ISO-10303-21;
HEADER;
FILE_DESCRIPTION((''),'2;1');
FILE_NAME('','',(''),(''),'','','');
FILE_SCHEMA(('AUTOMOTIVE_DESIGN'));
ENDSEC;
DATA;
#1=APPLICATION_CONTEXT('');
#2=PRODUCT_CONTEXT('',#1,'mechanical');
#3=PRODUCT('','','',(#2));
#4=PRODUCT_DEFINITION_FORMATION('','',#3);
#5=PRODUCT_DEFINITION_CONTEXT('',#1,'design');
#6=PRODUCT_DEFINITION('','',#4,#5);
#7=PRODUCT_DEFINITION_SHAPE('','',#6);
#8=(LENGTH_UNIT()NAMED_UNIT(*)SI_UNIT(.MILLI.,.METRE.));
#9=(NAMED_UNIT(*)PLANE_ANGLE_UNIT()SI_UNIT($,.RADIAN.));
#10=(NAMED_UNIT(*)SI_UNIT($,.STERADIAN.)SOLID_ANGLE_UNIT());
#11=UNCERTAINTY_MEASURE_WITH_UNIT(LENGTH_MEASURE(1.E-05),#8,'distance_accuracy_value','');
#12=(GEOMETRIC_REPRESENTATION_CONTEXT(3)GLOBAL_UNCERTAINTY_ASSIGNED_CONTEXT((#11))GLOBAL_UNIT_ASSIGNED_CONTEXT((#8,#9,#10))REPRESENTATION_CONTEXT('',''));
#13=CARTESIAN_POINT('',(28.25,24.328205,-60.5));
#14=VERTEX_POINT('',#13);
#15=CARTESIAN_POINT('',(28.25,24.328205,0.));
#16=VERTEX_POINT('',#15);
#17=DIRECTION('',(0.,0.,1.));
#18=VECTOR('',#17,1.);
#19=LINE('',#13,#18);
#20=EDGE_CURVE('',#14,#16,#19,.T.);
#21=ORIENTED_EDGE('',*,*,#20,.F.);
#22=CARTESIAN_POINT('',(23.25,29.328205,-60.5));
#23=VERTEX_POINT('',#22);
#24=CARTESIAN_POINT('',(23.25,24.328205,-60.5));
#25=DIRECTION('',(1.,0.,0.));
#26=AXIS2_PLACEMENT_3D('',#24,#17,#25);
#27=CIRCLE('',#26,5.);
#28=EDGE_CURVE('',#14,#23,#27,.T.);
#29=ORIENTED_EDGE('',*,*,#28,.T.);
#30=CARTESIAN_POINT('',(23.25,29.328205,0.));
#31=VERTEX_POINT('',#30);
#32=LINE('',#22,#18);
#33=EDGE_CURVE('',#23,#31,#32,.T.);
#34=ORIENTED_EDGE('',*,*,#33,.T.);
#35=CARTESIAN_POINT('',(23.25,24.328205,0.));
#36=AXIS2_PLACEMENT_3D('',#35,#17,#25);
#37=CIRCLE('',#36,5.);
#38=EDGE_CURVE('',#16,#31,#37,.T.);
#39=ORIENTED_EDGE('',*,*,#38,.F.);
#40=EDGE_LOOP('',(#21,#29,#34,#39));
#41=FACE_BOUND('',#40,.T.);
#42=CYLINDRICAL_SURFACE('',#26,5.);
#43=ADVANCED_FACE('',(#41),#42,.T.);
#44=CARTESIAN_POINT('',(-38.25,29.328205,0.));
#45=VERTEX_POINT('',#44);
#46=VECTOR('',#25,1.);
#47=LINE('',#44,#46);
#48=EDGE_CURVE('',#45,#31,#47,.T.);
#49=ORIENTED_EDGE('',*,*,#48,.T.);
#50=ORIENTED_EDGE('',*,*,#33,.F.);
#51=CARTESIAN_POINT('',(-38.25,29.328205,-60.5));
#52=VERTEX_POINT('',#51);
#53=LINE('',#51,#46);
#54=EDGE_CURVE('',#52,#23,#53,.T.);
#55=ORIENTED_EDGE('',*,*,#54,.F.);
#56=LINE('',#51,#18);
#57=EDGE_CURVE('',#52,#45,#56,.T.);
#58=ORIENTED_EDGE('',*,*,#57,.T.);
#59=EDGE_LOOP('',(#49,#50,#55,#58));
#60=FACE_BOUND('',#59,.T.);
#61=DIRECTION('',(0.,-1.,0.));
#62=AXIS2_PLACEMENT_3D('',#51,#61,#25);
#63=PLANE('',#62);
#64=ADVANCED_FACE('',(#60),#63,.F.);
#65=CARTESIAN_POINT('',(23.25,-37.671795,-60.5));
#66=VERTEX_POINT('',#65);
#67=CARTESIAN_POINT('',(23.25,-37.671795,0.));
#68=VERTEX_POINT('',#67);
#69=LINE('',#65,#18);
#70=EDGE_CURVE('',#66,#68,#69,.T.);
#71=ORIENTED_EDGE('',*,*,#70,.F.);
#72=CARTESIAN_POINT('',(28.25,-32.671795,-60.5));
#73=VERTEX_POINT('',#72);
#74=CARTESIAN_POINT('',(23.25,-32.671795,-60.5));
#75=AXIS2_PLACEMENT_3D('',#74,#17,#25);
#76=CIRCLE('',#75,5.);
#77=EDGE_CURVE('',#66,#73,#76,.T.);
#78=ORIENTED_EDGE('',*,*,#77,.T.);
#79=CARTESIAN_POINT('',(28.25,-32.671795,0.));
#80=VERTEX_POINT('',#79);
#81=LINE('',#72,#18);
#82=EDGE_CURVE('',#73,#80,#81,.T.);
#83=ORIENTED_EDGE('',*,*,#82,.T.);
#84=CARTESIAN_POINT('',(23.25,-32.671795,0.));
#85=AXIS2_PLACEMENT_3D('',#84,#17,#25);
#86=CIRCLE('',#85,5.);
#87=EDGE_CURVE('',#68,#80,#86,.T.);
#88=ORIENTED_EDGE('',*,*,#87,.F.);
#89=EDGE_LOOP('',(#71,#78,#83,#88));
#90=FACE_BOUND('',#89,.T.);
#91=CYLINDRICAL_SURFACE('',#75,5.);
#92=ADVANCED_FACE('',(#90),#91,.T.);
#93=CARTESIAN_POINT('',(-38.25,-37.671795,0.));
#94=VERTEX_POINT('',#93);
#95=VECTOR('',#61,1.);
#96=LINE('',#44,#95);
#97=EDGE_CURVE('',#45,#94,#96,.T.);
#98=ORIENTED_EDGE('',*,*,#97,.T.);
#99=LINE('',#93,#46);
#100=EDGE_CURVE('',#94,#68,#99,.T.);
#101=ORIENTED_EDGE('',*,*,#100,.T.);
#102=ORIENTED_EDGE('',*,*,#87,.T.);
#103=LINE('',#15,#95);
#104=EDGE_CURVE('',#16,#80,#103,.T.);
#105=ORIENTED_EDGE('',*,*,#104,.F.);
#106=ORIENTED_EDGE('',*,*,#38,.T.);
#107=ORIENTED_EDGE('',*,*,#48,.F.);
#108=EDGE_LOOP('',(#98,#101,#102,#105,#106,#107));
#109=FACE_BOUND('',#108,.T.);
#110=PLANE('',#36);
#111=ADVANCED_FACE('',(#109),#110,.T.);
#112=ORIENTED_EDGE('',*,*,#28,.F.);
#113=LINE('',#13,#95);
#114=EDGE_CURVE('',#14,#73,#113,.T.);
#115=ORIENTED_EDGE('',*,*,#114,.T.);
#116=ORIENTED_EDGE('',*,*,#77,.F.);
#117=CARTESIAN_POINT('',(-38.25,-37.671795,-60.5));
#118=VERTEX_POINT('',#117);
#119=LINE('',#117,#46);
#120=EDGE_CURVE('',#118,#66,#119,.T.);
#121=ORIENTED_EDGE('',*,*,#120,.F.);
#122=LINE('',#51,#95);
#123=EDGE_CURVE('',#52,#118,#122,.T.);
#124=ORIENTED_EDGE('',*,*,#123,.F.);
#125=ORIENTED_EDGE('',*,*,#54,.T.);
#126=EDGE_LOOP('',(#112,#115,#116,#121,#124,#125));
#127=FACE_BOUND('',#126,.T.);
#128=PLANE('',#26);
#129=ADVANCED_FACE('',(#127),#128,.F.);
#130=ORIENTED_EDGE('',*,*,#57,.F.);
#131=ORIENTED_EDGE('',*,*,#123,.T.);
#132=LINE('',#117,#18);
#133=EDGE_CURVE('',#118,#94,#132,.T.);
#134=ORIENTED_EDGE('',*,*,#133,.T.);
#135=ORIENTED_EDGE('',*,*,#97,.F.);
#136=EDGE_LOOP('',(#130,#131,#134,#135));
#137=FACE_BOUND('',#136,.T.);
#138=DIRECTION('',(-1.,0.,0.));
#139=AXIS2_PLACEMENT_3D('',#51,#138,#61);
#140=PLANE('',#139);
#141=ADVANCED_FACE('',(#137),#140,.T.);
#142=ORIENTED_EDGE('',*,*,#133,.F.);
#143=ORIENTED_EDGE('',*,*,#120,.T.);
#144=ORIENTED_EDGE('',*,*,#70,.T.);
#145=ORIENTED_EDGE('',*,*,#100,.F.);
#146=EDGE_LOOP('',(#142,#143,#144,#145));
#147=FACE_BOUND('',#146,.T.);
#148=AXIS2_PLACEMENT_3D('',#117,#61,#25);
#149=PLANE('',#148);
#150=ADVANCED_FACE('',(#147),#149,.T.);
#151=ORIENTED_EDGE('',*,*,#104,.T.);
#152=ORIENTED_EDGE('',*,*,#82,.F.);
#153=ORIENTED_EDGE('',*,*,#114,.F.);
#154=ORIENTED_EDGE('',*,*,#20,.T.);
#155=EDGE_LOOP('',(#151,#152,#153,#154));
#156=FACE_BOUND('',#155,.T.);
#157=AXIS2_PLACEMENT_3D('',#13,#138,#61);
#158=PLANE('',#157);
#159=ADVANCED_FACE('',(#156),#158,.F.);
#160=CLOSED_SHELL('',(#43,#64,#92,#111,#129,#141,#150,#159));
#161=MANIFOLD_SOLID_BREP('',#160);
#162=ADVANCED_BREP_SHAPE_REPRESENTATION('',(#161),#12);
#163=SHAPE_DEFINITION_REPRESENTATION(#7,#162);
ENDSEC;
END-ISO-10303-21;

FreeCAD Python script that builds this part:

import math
import FreeCAD as App
import Part
import Sketcher

V = App.Vector

doc = App.newDocument("Part")
params = doc.addObject("Spreadsheet::Sheet", "Params")
for row, (alias, value) in enumerate([
    ("sketch1_radius", "5 mm"),
    ("sketch1_height", "67 mm"),
    ("sketch1_width", "61.5 mm"),
    ("pad1_length", "60.5 mm"),
], start=1):
    params.set(f"A{row}", alias)
    params.set(f"B{row}", "=" + value)
    params.setAlias(f"B{row}", alias)

body = doc.addObject("PartDesign::Body", "Body")

# Sketch on XY plane
sketch1 = body.newObject("Sketcher::SketchObject", "Sketch")
sketch1.AttachmentSupport = (doc.getObject("XY_Plane"), [""])
sketch1.MapMode = "FlatFace"
sketch1.addGeometry([
    Part.LineSegment(V(23, 29, 0), V(-38, 29, 0)),  # 0
    Part.LineSegment(V(-38, 29, 0), V(-38, -38, 0)),  # 1
    Part.LineSegment(V(-38, -38, 0), V(23, -38, 0)),  # 2
    Part.ArcOfCircle(Part.Circle(V(23, -33, 0), V(0, 0, 1), 5), math.radians(-90), math.radians(0)),  # 3
    Part.LineSegment(V(28, -33, 0), V(28, 24, 0)),  # 4
    Part.ArcOfCircle(Part.Circle(V(23, 24, 0), V(0, 0, 1), 5), math.radians(0), math.radians(90)),  # 5
], False)
sketch1.addConstraint([
    Sketcher.Constraint("Coincident", 0, 2, 1, 1),
    Sketcher.Constraint("Coincident", 1, 2, 2, 1),
    Sketcher.Constraint("Tangent", 2, 2, 3, 1),
    Sketcher.Constraint("Tangent", 3, 2, 4, 1),
    Sketcher.Constraint("Tangent", 4, 2, 5, 1),
    Sketcher.Constraint("Tangent", 5, 2, 0, 1),
    Sketcher.Constraint("Horizontal", 0),
    Sketcher.Constraint("Vertical", 1),
    Sketcher.Constraint("Horizontal", 2),
    Sketcher.Constraint("Vertical", 4),
    Sketcher.Constraint("Equal", 3, 5),
    Sketcher.Constraint("Radius", 3, 5.0),
    Sketcher.Constraint("DistanceY", 1, 2, 1, 1, 67.0),
    Sketcher.Constraint("DistanceX", 0, 2, 0, 1, 61.5),
    Sketcher.Constraint("DistanceX", -1, 1, 3, 3, 23.25),
    Sketcher.Constraint("DistanceY", 3, 3, -1, 1, 32.671795),
])
sketch1.setExpression("Constraints[11]", "Params.sketch1_radius")
sketch1.setExpression("Constraints[12]", "Params.sketch1_height")
sketch1.setExpression("Constraints[13]", "Params.sketch1_width")
pad1 = body.newObject("PartDesign::Pad", "Pad")
pad1.Profile = sketch1
pad1.setExpression("Length", "Params.pad1_length")
pad1.Reversed = True

doc.recompute()
